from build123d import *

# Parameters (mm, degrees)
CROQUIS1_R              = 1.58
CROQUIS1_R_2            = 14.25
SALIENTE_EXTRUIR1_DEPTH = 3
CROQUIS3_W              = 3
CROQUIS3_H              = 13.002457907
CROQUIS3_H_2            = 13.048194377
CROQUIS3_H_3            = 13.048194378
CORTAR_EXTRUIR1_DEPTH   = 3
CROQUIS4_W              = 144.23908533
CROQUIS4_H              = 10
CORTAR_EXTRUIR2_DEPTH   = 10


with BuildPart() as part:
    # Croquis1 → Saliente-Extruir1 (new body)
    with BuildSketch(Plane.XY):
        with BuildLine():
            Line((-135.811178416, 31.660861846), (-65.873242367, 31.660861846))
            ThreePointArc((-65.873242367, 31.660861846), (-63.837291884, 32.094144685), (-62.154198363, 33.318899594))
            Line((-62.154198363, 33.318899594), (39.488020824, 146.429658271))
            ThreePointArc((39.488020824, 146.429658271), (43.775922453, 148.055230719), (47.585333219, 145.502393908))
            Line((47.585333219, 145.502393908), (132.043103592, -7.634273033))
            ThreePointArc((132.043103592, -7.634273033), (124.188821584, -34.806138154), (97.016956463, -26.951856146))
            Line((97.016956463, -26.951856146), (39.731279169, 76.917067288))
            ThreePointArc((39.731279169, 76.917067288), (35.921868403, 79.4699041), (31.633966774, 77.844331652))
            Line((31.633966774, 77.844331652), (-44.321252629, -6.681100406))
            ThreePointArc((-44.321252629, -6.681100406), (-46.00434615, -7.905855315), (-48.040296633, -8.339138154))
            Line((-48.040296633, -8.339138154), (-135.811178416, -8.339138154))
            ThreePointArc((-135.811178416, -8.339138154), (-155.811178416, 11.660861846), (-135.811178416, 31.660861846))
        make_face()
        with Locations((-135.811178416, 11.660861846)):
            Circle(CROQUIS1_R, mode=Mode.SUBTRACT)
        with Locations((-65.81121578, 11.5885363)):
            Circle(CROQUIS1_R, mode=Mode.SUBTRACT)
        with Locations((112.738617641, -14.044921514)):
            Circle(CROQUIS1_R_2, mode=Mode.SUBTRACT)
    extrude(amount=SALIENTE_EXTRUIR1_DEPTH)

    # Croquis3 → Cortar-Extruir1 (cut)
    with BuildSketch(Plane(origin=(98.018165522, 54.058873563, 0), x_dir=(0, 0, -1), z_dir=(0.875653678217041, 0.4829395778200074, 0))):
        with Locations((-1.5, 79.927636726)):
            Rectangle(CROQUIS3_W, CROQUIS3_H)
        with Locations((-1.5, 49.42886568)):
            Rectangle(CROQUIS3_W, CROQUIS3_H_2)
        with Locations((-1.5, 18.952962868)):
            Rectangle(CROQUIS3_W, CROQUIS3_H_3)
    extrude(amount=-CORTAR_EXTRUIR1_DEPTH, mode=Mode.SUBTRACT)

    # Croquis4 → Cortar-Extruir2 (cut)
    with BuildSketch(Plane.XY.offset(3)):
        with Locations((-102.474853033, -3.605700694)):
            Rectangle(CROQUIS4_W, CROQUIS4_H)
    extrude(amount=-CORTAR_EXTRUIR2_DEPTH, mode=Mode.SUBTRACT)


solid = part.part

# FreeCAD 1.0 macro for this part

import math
import FreeCAD as App
import Part
import Sketcher

V = App.Vector


def add_polygon(sketch, points):
    """Adds a closed chain of lines whose ends are joined by coincident constraints."""
    first, n = sketch.GeometryCount, len(points)
    for a, b in zip(points, points[1:] + points[:1]):
        sketch.addGeometry(Part.LineSegment(App.Vector(*a, 0), App.Vector(*b, 0)), False)
    for i in range(n):
        sketch.addConstraint(Sketcher.Constraint("Coincident", first + i, 2, first + (i + 1) % n, 1))

doc = App.newDocument("Part")
body = doc.addObject("PartDesign::Body", "Body")

# Sketch on XY plane
sketch1 = body.newObject("Sketcher::SketchObject", "Sketch")
sketch1.AttachmentSupport = (doc.getObject("XY_Plane"), [""])
sketch1.MapMode = "FlatFace"
sketch1.addGeometry([
    Part.LineSegment(V(-65.9, 31.7, 0), V(-135.8, 31.7, 0)),  # 0
    Part.ArcOfCircle(Part.Circle(V(-135.8, 11.7, 0), V(0, 0, 1), 20), math.radians(90), math.radians(270)),  # 1
    Part.LineSegment(V(-135.8, -8.3, 0), V(-48, -8.3, 0)),  # 2
    Part.ArcOfCircle(Part.Circle(V(-48, -3.3, 0), V(0, 0, 1), 5), math.radians(-90), math.radians(-42)),  # 3
    Part.LineSegment(V(-44.3, -6.7, 0), V(31.6, 77.8, 0)),  # 4
    Part.ArcOfCircle(Part.Circle(V(35.4, 74.5, 0), V(0, 0, 1), 5), math.radians(29), math.radians(138)),  # 5
    Part.LineSegment(V(39.7, 76.9, 0), V(97, -27, 0)),  # 6
    Part.ArcOfCircle(Part.Circle(V(114.5, -17.3, 0), V(0, 0, 1), 20), math.radians(-151), math.radians(29)),  # 7
    Part.LineSegment(V(132, -7.6, 0), V(47.6, 145.5, 0)),  # 8
    Part.ArcOfCircle(Part.Circle(V(43.2, 143.1, 0), V(0, 0, 1), 5), math.radians(29), math.radians(138)),  # 9
    Part.LineSegment(V(39.5, 146.4, 0), V(-62.2, 33.3, 0)),  # 10
    Part.ArcOfCircle(Part.Circle(V(-65.9, 36.7, 0), V(0, 0, 1), 5), math.radians(-90), math.radians(-42)),  # 11
    Part.Circle(V(112.7, -14, 0), V(0, 0, 1), 14.2),  # 12
    Part.Circle(V(-65.8, 11.6, 0), V(0, 0, 1), 1.6),  # 13
    Part.Circle(V(-135.8, 11.7, 0), V(0, 0, 1), 1.6),  # 14
], False)
sketch1.addConstraint([
    Sketcher.Constraint("Tangent", 0, 2, 1, 1),
    Sketcher.Constraint("Tangent", 1, 2, 2, 1),
    Sketcher.Constraint("Tangent", 2, 2, 3, 1),
    Sketcher.Constraint("Tangent", 3, 2, 4, 1),
    Sketcher.Constraint("Tangent", 4, 2, 5, 2),
    Sketcher.Constraint("Tangent", 5, 1, 6, 1),
    Sketcher.Constraint("Tangent", 6, 2, 7, 1),
    Sketcher.Constraint("Tangent", 7, 2, 8, 1),
    Sketcher.Constraint("Tangent", 8, 2, 9, 1),
    Sketcher.Constraint("Tangent", 9, 2, 10, 1),
    Sketcher.Constraint("Tangent", 10, 2, 11, 2),
    Sketcher.Constraint("Tangent", 11, 1, 0, 1),
    Sketcher.Constraint("Horizontal", 0),
    Sketcher.Constraint("Horizontal", 2),
    Sketcher.Constraint("Coincident", 14, 3, 1, 3),
    Sketcher.Constraint("Equal", 3, 5),
    Sketcher.Constraint("Equal", 1, 7),
    Sketcher.Constraint("Equal", 5, 9),
    Sketcher.Constraint("Equal", 9, 11),
    Sketcher.Constraint("Equal", 13, 14),
    Sketcher.Constraint("Parallel", 6, 8),
    Sketcher.Constraint("Parallel", 4, 10),
    Sketcher.Constraint("Radius", 1, 20.0),
    Sketcher.Constraint("Radius", 3, 5.0),
    Sketcher.Constraint("Diameter", 12, 28.5),
    Sketcher.Constraint("Diameter", 13, 3.16),
    Sketcher.Constraint("DistanceX", 2, 1, 2, 2, 87.770882),
    Sketcher.Constraint("DistanceY", 3, 2, -1, 1, 6.6811),
    Sketcher.Constraint("DistanceX", 10, 2, -1, 1, 62.154198),
    Sketcher.Constraint("DistanceX", 4, 2, 9, 3, 11.573098),
    Sketcher.Constraint("DistanceX", 10, 2, 3, 3, 14.113902),
    Sketcher.Constraint("Distance", 10, 152.06967),
    Sketcher.Constraint("DistanceX", 0, 2, 0, 1, 69.937936),
    Sketcher.Constraint("DistanceX", -1, 1, 7, 3, 114.53003),
    Sketcher.Constraint("DistanceY", 12, 3, -1, 1, 14.044922),
    Sketcher.Constraint("DistanceX", 11, 3, 12, 3, 178.61186),
    Sketcher.Constraint("DistanceX", 13, 3, 3, 3, 17.770919),
    Sketcher.Constraint("DistanceY", 13, 3, 9, 3, 131.49916),
])
pad1 = body.newObject("PartDesign::Pad", "Pad")
pad1.Profile = sketch1
pad1.Length = 3

# Sketch on an angled plane
sketch2 = body.newObject("Sketcher::SketchObject", "Sketch001")
sketch2.Placement = App.Placement(V(98.018166, 54.058874, 0), App.Rotation(V(0, 0, -1), V(-0.482939578, 0.875653678, 0), V(0.875653678, 0.482939578, 0), "ZXY"))
add_polygon(sketch2, [(-3, 86.4), (-3, 73.4), (0, 73.4), (0, 86.4)])  # lines 0-3
add_polygon(sketch2, [(-3, 56), (-3, 42.9), (0, 42.9), (0, 56)])  # lines 4-7
add_polygon(sketch2, [(-3, 25.5), (-3, 12.4), (0, 12.4), (0, 25.5)])  # lines 8-11
sketch2.addConstraint([
    Sketcher.Constraint("Vertical", 0),
    Sketcher.Constraint("Horizontal", 1),
    Sketcher.Constraint("Vertical", 2),
    Sketcher.Constraint("Horizontal", 3),
    Sketcher.Constraint("Vertical", 4),
    Sketcher.Constraint("Horizontal", 5),
    Sketcher.Constraint("Vertical", 6),
    Sketcher.Constraint("Horizontal", 7),
    Sketcher.Constraint("Vertical", 8),
    Sketcher.Constraint("Horizontal", 9),
    Sketcher.Constraint("Vertical", 10),
    Sketcher.Constraint("Horizontal", 11),
    Sketcher.Constraint("PointOnObject", 1, 2, -2),
    Sketcher.Constraint("PointOnObject", 5, 2, -2),
    Sketcher.Constraint("PointOnObject", 9, 2, -2),
    Sketcher.Constraint("Vertical", 3, 2, 4, 2),
    Sketcher.Constraint("Vertical", 7, 2, 8, 2),
    Sketcher.Constraint("Equal", 6, 8),
    Sketcher.Constraint("DistanceX", 1, 1, 1, 2, 3.0),
    Sketcher.Constraint("DistanceY", 0, 2, 0, 1, 13.002458),
    Sketcher.Constraint("DistanceY", 4, 2, 4, 1, 13.048194),
    Sketcher.Constraint("DistanceY", -1, 1, 4, 2, 42.904768),
    Sketcher.Constraint("DistanceY", -1, 1, 10, 2, 25.47706),
    Sketcher.Constraint("DistanceY", 4, 2, 0, 2, 30.521639),
])
pocket1 = body.newObject("PartDesign::Pocket", "Pocket")
pocket1.Profile = sketch2
pocket1.Length = 3

# Sketch on XY plane
sketch3 = body.newObject("Sketcher::SketchObject", "Sketch002")
sketch3.AttachmentSupport = (doc.getObject("XY_Plane"), [""])
sketch3.MapMode = "FlatFace"
sketch3.AttachmentOffset = App.Placement(V(0, 0, 3), App.Rotation())
add_polygon(sketch3, [(-175, 1), (-175, -9), (-30, -9), (-30, 1)])  # lines 0-3
sketch3.addConstraint([
    Sketcher.Constraint("Vertical", 0),
    Sketcher.Constraint("Horizontal", 1),
    Sketcher.Constraint("Vertical", 2),
    Sketcher.Constraint("Horizontal", 3),
    Sketcher.Constraint("DistanceY", 0, 2, 0, 1, 10.0),
    Sketcher.Constraint("DistanceY", 0, 2, -1, 1, 8.605701),
    Sketcher.Constraint("DistanceX", 1, 1, 1, 2, 144.239085),
    Sketcher.Constraint("DistanceX", 1, 2, -1, 1, 30.35531),
])
pocket2 = body.newObject("PartDesign::Pocket", "Pocket001")
pocket2.Profile = sketch3
pocket2.Length = 10

doc.recompute()
